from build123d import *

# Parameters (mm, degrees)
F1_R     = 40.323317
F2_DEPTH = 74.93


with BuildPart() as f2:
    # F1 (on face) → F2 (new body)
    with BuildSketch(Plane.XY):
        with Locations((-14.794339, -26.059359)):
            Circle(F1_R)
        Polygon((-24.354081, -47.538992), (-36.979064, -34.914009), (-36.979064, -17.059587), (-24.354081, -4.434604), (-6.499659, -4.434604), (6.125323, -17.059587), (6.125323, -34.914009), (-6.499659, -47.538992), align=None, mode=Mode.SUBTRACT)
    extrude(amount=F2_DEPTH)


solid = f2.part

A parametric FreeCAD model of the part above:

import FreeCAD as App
import Part
import Sketcher
Q = App.Units.Quantity

doc = App.newDocument("Part")
body = doc.addObject("PartDesign::Body", "Body")

# Sketch on XY plane
sketch1 = doc.addObject("Sketcher::SketchObject", "Sketch")
body.addObject(sketch1)
sketch1.AttachmentSupport = (doc.XY_Plane, [""])
sketch1.MapMode = "FlatFace"
sketch1.addGeometry(Part.Circle(App.Vector(-14.794339, -26.059359, 0), App.Vector(0, 0, 1), 40.323317), False)
sketch1.addGeometry(Part.LineSegment(App.Vector(-6.499659, -47.538992, 0), App.Vector(-24.354081, -47.538992, 0)), False)
sketch1.addGeometry(Part.LineSegment(App.Vector(-24.354081, -47.538992, 0), App.Vector(-36.979064, -34.914009, 0)), False)
sketch1.addGeometry(Part.LineSegment(App.Vector(-36.979064, -34.914009, 0), App.Vector(-36.979064, -17.059587, 0)), False)
sketch1.addGeometry(Part.LineSegment(App.Vector(-36.979064, -17.059587, 0), App.Vector(-24.354081, -4.434604, 0)), False)
sketch1.addGeometry(Part.LineSegment(App.Vector(-24.354081, -4.434604, 0), App.Vector(-6.499659, -4.434604, 0)), False)
sketch1.addGeometry(Part.LineSegment(App.Vector(-6.499659, -4.434604, 0), App.Vector(6.125323, -17.059587, 0)), False)
sketch1.addGeometry(Part.LineSegment(App.Vector(6.125323, -17.059587, 0), App.Vector(6.125323, -34.914009, 0)), False)
sketch1.addGeometry(Part.LineSegment(App.Vector(6.125323, -34.914009, 0), App.Vector(-6.499659, -47.538992, 0)), False)
sketch1.addConstraint(Sketcher.Constraint("Coincident", 1, 2, 2, 1))
sketch1.addConstraint(Sketcher.Constraint("Coincident", 2, 2, 3, 1))
sketch1.addConstraint(Sketcher.Constraint("Coincident", 3, 2, 4, 1))
sketch1.addConstraint(Sketcher.Constraint("Coincident", 4, 2, 5, 1))
sketch1.addConstraint(Sketcher.Constraint("Coincident", 5, 2, 6, 1))
sketch1.addConstraint(Sketcher.Constraint("Coincident", 6, 2, 7, 1))
sketch1.addConstraint(Sketcher.Constraint("Coincident", 7, 2, 8, 1))
sketch1.addConstraint(Sketcher.Constraint("Coincident", 8, 2, 1, 1))
sketch1.addConstraint(Sketcher.Constraint("Horizontal", 1))
sketch1.addConstraint(Sketcher.Constraint("Vertical", 3))
sketch1.addConstraint(Sketcher.Constraint("Horizontal", 5))
sketch1.addConstraint(Sketcher.Constraint("Vertical", 7))
sketch1.addConstraint(Sketcher.Constraint("Perpendicular", 2, 4))
sketch1.addConstraint(Sketcher.Constraint("Perpendicular", 4, 6))
sketch1.addConstraint(Sketcher.Constraint("Perpendicular", 6, 8))
sketch1.addConstraint(Sketcher.Constraint("Horizontal", 3, 2, 6, 2))
sketch1.addConstraint(Sketcher.Constraint("Horizontal", 2, 2, 7, 2))
sketch1.addConstraint(Sketcher.Constraint("Vertical", 1, 2, 4, 2))
sketch1.addConstraint(Sketcher.Constraint("Vertical", 5, 2, 8, 2))
sketch1.addConstraint(Sketcher.Constraint("Equal", 5, 3))
sketch1.addConstraint(Sketcher.Constraint("Diameter", 0, Q("80.646634 mm")))
sketch1.addConstraint(Sketcher.Constraint("DistanceX", 1, 2, 1, 1, Q("17.854422 mm")))
sketch1.addConstraint(Sketcher.Constraint("Distance", 6, Q("17.854421 mm")))
sketch1.addConstraint(Sketcher.Constraint("DistanceX", 0, 3, -1, 1, Q("14.794339 mm")))
sketch1.addConstraint(Sketcher.Constraint("DistanceY", 0, 3, -1, 1, Q("26.059359 mm")))
sketch1.addConstraint(Sketcher.Constraint("DistanceX", 1, 2, -1, 1, Q("24.354081 mm")))
sketch1.addConstraint(Sketcher.Constraint("DistanceY", 2, 2, -1, 1, Q("34.914009 mm")))
pad1 = doc.addObject("PartDesign::Pad", "Pad")
body.addObject(pad1)
pad1.Profile = sketch1
pad1.Length = Q("2.95 in")

doc.recompute()
